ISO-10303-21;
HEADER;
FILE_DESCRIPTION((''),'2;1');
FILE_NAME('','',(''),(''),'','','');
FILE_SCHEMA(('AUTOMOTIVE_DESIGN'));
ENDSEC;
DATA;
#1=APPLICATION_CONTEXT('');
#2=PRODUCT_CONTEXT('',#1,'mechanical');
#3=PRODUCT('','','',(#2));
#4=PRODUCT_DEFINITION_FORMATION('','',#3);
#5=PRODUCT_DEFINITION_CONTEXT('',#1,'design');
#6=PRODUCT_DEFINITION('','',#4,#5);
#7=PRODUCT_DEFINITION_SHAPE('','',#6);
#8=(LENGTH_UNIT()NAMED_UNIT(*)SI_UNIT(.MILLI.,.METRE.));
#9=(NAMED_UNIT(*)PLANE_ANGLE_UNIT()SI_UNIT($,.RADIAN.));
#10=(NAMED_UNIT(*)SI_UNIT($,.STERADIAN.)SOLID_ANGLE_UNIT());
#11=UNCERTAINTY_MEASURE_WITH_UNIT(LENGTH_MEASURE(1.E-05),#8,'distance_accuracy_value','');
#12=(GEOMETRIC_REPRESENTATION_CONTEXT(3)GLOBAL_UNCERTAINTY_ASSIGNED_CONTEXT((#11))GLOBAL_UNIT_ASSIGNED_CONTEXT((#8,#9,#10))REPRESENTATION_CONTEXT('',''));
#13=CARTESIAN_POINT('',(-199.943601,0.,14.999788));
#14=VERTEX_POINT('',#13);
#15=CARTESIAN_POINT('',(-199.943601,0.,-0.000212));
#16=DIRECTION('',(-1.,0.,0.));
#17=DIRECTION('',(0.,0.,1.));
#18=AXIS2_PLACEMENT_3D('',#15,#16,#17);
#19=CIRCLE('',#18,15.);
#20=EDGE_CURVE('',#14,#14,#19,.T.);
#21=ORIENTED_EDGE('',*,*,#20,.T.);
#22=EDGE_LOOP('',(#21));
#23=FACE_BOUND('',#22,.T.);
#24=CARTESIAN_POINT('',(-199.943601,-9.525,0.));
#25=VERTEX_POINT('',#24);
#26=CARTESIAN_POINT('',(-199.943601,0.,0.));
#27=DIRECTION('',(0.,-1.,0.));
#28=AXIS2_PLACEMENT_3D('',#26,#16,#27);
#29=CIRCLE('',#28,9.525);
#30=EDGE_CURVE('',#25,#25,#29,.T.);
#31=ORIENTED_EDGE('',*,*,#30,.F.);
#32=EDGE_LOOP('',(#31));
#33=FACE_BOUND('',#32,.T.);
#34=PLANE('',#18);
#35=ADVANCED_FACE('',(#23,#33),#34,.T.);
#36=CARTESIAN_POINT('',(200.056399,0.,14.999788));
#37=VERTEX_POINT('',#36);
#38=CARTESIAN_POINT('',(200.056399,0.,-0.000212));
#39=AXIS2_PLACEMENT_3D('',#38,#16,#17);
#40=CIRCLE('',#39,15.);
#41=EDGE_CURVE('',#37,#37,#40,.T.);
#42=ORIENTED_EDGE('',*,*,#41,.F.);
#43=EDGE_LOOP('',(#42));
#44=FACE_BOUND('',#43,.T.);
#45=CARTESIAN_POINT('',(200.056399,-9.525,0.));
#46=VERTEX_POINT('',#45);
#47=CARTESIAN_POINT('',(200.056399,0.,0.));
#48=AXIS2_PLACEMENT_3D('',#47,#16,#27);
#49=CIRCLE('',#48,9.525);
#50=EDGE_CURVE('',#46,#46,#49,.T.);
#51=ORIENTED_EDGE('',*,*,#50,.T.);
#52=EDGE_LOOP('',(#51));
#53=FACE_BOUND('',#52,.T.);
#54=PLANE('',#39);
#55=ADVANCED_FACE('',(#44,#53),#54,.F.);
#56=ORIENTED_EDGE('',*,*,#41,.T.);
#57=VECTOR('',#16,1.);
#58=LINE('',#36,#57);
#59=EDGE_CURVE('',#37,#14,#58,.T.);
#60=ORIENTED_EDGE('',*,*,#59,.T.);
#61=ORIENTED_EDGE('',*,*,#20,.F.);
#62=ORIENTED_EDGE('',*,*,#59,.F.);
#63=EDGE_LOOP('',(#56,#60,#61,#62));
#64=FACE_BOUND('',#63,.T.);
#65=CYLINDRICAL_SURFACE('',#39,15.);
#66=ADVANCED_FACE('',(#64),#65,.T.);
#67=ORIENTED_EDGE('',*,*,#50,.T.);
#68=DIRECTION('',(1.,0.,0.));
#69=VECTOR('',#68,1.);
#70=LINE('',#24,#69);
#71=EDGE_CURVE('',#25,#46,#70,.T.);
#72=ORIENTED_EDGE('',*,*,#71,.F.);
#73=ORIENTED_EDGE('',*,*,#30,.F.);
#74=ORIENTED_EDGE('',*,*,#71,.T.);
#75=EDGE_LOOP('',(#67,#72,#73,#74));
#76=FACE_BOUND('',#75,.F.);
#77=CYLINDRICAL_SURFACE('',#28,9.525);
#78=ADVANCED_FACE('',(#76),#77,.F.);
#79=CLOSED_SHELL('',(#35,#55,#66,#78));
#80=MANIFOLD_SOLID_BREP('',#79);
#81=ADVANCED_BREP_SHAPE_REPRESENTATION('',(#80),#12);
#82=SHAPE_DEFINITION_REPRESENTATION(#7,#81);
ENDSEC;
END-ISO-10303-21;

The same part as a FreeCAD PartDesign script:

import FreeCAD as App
import Part
import Sketcher
from FreeCAD import Vector

doc = App.newDocument("Part")
body = doc.addObject("PartDesign::Body", "Body")

sketch1 = body.newObject("Sketcher::SketchObject", "Sketch")
sketch1.AttachmentSupport = (doc.getObject("XZ_Plane"), [""])
sketch1.MapMode = "FlatFace"
sketch1.addGeometry([
    Part.LineSegment(Vector(-200, 0, 0), Vector(200, 0, 0)),
    Part.LineSegment(Vector(200, 0, 0), Vector(200, 15, 0)),
    Part.LineSegment(Vector(200, 15, 0), Vector(-200, 15, 0)),
    Part.LineSegment(Vector(-200, 15, 0), Vector(-200, 0, 0)),
], False)
sketch1.addGeometry(Part.LineSegment(Vector(200, 0, 0), Vector(-200, 0, 0)), True)
sketch1.addConstraint([
    Sketcher.Constraint("Coincident", 0, 2, 1, 1),
    Sketcher.Constraint("Coincident", 1, 2, 2, 1),
    Sketcher.Constraint("Coincident", 2, 2, 3, 1),
    Sketcher.Constraint("Coincident", 3, 2, 0, 1),
    Sketcher.Constraint("Horizontal", 0),
    Sketcher.Constraint("Vertical", 1),
    Sketcher.Constraint("Horizontal", 2),
    Sketcher.Constraint("Vertical", 3),
    Sketcher.Constraint("Horizontal", 4),
    Sketcher.Constraint("Coincident", 4, 1, 0, 2),
    Sketcher.Constraint("Vertical", 2, 2, 4, 2),
    Sketcher.Constraint("DistanceX", 0, 1, 0, 2, 400.0),
    Sketcher.Constraint("DistanceY", 1, 1, 1, 2, 15.0),
    Sketcher.Constraint("DistanceX", -1, 1, 0, 2, 200.056399),
    Sketcher.Constraint("DistanceY", 0, 2, -1, 1, 0.000212),
])
revolution = body.newObject("PartDesign::Revolution", "Revolution")
revolution.Profile = sketch1
revolution.ReferenceAxis = (sketch1, ["Axis0"])
revolution.Angle = 360

sketch2 = body.newObject("Sketcher::SketchObject", "Sketch001")
sketch2.AttachmentSupport = (doc.getObject("YZ_Plane"), [""])
sketch2.MapMode = "FlatFace"
sketch2.AttachmentOffset = App.Placement(Vector(0, 0, -199.943601), App.Rotation())
sketch2.addGeometry(Part.Circle(Vector(0, 0, 0), Vector(0, 0, 1), 10), False)
sketch2.addConstraint([
    Sketcher.Constraint("Coincident", 0, 3, -1, 1),
    Sketcher.Constraint("Diameter", 0, 19.05),
])
pocket1 = body.newObject("PartDesign::Pocket", "Pocket")
pocket1.Profile = sketch2
pocket1.Type = "ThroughAll"
pocket1.Reversed = True

doc.recompute()
